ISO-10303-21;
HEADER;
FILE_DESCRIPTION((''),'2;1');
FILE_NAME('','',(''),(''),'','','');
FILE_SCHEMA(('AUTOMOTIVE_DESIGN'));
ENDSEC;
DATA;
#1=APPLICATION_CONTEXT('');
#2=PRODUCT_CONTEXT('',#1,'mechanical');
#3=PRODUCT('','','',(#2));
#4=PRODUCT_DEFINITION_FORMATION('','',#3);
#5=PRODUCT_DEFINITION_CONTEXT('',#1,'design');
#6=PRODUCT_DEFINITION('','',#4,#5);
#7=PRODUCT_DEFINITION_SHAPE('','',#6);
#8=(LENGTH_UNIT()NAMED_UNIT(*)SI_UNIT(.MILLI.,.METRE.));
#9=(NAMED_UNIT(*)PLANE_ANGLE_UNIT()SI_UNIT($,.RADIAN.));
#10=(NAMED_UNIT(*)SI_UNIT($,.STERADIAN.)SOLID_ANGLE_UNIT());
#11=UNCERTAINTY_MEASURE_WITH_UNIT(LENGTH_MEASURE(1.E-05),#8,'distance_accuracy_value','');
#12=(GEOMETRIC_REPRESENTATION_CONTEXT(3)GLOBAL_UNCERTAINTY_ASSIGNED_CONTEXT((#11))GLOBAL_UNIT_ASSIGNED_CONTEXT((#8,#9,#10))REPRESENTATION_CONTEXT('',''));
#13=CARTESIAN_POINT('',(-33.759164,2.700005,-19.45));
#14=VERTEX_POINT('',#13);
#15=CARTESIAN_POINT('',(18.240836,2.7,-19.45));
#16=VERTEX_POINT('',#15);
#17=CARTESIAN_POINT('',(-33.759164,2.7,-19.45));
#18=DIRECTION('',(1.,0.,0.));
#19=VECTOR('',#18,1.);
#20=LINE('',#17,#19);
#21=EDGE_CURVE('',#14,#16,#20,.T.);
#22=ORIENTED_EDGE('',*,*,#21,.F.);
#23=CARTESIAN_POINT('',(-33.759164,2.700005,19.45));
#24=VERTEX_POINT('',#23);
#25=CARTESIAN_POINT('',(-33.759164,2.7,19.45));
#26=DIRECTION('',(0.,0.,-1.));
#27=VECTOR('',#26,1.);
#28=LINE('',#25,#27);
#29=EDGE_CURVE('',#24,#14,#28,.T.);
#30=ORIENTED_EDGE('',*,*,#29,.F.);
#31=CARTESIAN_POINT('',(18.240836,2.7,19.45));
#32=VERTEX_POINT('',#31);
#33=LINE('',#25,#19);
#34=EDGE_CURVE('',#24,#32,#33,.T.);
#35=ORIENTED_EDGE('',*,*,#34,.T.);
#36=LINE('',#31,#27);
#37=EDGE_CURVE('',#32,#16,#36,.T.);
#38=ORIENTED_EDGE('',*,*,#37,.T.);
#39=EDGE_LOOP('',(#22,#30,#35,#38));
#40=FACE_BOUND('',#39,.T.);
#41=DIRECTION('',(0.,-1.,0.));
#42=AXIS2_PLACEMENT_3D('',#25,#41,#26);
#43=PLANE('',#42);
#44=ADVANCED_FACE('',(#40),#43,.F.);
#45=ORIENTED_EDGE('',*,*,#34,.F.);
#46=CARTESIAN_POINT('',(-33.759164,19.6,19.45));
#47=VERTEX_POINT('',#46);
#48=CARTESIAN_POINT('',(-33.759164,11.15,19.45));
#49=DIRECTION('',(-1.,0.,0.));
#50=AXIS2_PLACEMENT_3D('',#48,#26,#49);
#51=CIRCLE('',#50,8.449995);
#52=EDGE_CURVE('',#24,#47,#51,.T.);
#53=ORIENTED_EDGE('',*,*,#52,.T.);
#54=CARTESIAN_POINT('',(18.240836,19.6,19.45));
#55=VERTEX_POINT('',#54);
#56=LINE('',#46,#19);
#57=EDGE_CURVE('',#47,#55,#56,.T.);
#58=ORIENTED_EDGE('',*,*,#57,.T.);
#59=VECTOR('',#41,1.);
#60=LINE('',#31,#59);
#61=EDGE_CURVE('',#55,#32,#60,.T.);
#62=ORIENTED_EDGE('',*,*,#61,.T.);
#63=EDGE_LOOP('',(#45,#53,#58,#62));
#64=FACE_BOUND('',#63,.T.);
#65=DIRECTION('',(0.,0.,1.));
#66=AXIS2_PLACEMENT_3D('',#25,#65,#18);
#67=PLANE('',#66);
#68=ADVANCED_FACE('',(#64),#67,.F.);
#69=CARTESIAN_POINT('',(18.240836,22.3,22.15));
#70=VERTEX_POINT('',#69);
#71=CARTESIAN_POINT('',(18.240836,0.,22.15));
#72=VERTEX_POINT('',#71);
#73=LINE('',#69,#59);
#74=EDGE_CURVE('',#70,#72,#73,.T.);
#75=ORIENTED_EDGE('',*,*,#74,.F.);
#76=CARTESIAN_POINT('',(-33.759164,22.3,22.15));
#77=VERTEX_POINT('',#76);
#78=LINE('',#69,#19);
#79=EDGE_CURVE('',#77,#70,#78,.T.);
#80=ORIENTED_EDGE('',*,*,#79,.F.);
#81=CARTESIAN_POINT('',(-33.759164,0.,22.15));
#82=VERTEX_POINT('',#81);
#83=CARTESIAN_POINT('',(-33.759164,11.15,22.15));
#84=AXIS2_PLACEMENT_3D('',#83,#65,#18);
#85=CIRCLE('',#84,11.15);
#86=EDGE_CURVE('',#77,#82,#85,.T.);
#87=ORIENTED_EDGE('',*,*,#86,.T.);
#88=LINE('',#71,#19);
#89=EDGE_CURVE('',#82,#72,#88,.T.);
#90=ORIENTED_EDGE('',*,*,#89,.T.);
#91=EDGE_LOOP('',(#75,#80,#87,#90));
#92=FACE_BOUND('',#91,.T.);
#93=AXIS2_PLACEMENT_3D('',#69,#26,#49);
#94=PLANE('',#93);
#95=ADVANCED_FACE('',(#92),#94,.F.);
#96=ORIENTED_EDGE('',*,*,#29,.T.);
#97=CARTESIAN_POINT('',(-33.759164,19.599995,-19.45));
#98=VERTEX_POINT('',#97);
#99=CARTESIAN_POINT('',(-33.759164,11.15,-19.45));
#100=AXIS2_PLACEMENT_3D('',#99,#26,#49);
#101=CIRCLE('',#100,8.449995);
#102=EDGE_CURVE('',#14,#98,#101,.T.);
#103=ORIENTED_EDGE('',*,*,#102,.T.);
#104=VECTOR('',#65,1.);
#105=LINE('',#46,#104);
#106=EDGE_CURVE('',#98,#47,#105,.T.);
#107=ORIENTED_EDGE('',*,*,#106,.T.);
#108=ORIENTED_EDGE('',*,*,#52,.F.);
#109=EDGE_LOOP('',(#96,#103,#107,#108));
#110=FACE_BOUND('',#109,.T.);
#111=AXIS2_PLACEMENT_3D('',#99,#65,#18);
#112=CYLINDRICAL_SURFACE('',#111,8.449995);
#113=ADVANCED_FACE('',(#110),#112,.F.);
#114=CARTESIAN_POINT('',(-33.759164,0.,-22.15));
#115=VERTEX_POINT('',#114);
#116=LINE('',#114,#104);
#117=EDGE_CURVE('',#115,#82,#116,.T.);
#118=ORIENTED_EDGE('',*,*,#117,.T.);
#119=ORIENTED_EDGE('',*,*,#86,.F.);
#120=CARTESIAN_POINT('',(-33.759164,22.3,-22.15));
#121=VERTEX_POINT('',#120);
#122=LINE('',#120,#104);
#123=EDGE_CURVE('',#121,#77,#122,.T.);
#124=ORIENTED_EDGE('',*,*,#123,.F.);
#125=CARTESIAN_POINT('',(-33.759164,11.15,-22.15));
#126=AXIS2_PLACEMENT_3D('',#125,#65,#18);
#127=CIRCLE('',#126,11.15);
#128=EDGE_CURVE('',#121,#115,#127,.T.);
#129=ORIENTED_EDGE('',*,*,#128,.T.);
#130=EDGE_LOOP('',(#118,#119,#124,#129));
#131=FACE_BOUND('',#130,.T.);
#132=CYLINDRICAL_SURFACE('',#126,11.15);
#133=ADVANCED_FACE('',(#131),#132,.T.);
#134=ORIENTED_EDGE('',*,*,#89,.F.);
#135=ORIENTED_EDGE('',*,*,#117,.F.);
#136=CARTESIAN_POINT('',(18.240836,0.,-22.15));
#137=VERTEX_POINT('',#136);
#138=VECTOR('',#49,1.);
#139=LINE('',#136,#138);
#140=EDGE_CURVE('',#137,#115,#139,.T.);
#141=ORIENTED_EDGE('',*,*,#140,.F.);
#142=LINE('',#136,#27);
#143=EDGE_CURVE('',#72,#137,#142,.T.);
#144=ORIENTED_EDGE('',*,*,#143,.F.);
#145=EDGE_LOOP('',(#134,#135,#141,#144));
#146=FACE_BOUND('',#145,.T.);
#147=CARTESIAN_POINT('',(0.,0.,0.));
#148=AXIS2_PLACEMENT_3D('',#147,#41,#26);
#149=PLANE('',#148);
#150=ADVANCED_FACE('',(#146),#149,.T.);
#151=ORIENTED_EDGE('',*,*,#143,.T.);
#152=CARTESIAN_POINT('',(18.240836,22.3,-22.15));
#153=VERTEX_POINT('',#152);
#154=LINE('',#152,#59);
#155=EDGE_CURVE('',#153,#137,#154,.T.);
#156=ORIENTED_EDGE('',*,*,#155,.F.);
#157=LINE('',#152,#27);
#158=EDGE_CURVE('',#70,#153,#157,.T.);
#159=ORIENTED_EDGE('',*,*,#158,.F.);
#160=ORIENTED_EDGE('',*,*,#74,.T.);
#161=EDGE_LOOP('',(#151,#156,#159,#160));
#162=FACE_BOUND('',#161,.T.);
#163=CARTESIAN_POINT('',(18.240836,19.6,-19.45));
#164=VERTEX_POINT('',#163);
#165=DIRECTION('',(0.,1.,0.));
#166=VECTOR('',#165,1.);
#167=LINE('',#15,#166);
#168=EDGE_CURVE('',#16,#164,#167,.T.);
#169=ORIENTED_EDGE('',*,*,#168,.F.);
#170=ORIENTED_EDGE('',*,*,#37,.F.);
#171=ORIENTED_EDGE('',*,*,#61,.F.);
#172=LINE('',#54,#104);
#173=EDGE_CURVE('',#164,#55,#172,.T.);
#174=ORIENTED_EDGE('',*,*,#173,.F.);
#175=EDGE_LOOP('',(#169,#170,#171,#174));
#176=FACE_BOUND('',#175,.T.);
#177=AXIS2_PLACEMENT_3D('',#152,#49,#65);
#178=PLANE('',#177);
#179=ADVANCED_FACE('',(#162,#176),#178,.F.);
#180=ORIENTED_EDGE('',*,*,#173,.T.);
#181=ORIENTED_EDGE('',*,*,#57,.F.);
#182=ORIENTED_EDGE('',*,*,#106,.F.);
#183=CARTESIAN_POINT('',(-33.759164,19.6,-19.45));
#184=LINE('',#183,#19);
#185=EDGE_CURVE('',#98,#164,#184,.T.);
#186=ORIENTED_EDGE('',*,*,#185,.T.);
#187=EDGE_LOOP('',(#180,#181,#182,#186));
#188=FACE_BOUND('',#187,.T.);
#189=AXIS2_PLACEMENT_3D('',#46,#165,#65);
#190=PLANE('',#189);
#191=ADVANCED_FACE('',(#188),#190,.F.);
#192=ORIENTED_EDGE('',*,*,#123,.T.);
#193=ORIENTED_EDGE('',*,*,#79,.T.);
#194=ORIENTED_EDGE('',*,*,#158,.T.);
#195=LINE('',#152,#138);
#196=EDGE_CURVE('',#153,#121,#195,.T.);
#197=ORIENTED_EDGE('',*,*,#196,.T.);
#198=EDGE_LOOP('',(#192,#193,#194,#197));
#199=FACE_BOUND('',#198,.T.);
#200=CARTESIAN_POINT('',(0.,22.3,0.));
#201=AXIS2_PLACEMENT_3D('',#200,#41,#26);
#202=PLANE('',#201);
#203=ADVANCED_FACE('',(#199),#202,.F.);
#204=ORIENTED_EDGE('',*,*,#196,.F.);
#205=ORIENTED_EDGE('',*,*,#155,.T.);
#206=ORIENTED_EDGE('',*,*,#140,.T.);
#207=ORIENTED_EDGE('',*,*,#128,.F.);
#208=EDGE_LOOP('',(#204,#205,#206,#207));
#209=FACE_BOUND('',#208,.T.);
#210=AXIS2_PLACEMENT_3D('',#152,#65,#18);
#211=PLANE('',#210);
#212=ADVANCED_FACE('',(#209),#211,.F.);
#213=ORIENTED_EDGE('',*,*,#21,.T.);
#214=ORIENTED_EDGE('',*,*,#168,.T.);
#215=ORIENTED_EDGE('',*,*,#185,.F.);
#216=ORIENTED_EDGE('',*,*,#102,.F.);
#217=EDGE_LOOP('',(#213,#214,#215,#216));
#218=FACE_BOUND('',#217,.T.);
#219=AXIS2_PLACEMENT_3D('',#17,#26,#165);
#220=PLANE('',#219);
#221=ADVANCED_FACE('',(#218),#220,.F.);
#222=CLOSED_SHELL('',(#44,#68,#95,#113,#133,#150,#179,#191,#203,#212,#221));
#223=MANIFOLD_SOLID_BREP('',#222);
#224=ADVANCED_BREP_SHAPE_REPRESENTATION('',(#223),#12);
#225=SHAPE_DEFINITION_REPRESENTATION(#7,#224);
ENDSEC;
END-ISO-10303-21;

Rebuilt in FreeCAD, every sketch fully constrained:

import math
import FreeCAD as App
import Part
import Sketcher
Q = App.Units.Quantity

doc = App.newDocument("Part")
params = doc.addObject("Spreadsheet::Sheet", "Params")
for row, (alias, value) in enumerate([
    ("sketch1_width", "52 mm"),
    ("sketch1_height", "44.3 mm"),
    ("pad1_length", "22.3 mm"),
    ("sketch2_width", "16.9 mm"),
    ("sketch2_height", "38.9 mm"),
    ("pocket1_length", "52 mm"),
    ("sketch3_radius", "11.15 mm"),
    ("pad2_length", "44.3 mm"),
    ("pocket2_length", "38.9 mm"),
], start=1):
    params.set(f"A{row}", alias)
    params.set(f"B{row}", "=" + value)
    params.setAlias(f"B{row}", alias)

body = doc.addObject("PartDesign::Body", "Body")

sketch1 = body.newObject("Sketcher::SketchObject", "Sketch")
sketch1.AttachmentSupport = (doc.getObject("XZ_Plane"), [""])
sketch1.MapMode = "FlatFace"
sketch1.addGeometry([
    Part.LineSegment(App.Vector(-34, -22, 0), App.Vector(-34, 22, 0)),
    Part.LineSegment(App.Vector(-34, 22, 0), App.Vector(18, 22, 0)),
    Part.LineSegment(App.Vector(18, 22, 0), App.Vector(18, -22, 0)),
    Part.LineSegment(App.Vector(18, -22, 0), App.Vector(-34, -22, 0)),
], False)
sketch1.addConstraint([
    Sketcher.Constraint("Coincident", 0, 2, 1, 1),
    Sketcher.Constraint("Coincident", 1, 2, 2, 1),
    Sketcher.Constraint("Coincident", 2, 2, 3, 1),
    Sketcher.Constraint("Coincident", 3, 2, 0, 1),
    Sketcher.Constraint("Vertical", 0),
    Sketcher.Constraint("Horizontal", 1),
    Sketcher.Constraint("Vertical", 2),
    Sketcher.Constraint("Horizontal", 3),
    Sketcher.Constraint("DistanceX", 1, 1, 1, 2, Q("52 mm")),
    Sketcher.Constraint("DistanceY", 0, 1, 0, 2, Q("44.3 mm")),
    Sketcher.Constraint("DistanceY", -1, 1, 0, 2, Q("22.15 mm")),
    Sketcher.Constraint("DistanceX", 0, 2, -1, 1, Q("33.759164 mm")),
])
sketch1.setExpression("Constraints[8]", "Params.sketch1_width")
sketch1.setExpression("Constraints[9]", "Params.sketch1_height")
pad1 = body.newObject("PartDesign::Pad", "Pad")
pad1.Profile = sketch1
pad1.setExpression("Length", "Params.pad1_length")
pad1.Reversed = True

sketch2 = body.newObject("Sketcher::SketchObject", "Sketch001")
sketch2.AttachmentSupport = (doc.getObject("YZ_Plane"), [""])
sketch2.MapMode = "FlatFace"
sketch2.AttachmentOffset = App.Placement(App.Vector(0, 0, 18.240836), App.Rotation())
sketch2.addGeometry([
    Part.LineSegment(App.Vector(20, 19, 0), App.Vector(3, 19, 0)),
    Part.LineSegment(App.Vector(3, 19, 0), App.Vector(3, -19, 0)),
    Part.LineSegment(App.Vector(3, -19, 0), App.Vector(20, -19, 0)),
    Part.LineSegment(App.Vector(20, -19, 0), App.Vector(20, 19, 0)),
], False)
sketch2.addConstraint([
    Sketcher.Constraint("Coincident", 0, 2, 1, 1),
    Sketcher.Constraint("Coincident", 1, 2, 2, 1),
    Sketcher.Constraint("Coincident", 2, 2, 3, 1),
    Sketcher.Constraint("Coincident", 3, 2, 0, 1),
    Sketcher.Constraint("Horizontal", 0),
    Sketcher.Constraint("Vertical", 1),
    Sketcher.Constraint("Horizontal", 2),
    Sketcher.Constraint("Vertical", 3),
    Sketcher.Constraint("DistanceX", 0, 2, 0, 1, Q("16.9 mm")),
    Sketcher.Constraint("DistanceY", 1, 2, 1, 1, Q("38.9 mm")),
    Sketcher.Constraint("DistanceX", -1, 1, 0, 2, Q("2.7 mm")),
    Sketcher.Constraint("DistanceY", -1, 1, 0, 2, Q("19.45 mm")),
])
sketch2.setExpression("Constraints[8]", "Params.sketch2_width")
sketch2.setExpression("Constraints[9]", "Params.sketch2_height")
pocket1 = body.newObject("PartDesign::Pocket", "Pocket")
pocket1.Profile = sketch2
pocket1.setExpression("Length", "Params.pocket1_length")

sketch3 = body.newObject("Sketcher::SketchObject", "Sketch002")
sketch3.AttachmentSupport = (doc.getObject("XY_Plane"), [""])
sketch3.MapMode = "FlatFace"
sketch3.AttachmentOffset = App.Placement(App.Vector(0, 0, 22.15), App.Rotation())
sketch3.addGeometry([
    Part.LineSegment(App.Vector(-34, 0, 0), App.Vector(-34, 22, 0)),
    Part.ArcOfCircle(Part.Circle(App.Vector(-34, 11, 0), App.Vector(0, 0, 1), 11), math.radians(90), math.radians(270)),
], False)
sketch3.addConstraint([
    Sketcher.Constraint("Coincident", 0, 1, 1, 2),
    Sketcher.Constraint("Coincident", 1, 1, 0, 2),
    Sketcher.Constraint("Vertical", 0),
    Sketcher.Constraint("PointOnObject", 0, 1, -1),
    Sketcher.Constraint("Vertical", 1, 3, 0, 1),
    Sketcher.Constraint("Radius", 1, Q("11.15 mm")),
    Sketcher.Constraint("DistanceX", 1, 3, -1, 1, Q("33.759164 mm")),
])
sketch3.setExpression("Constraints[5]", "Params.sketch3_radius")
pad2 = body.newObject("PartDesign::Pad", "Pad001")
pad2.Profile = sketch3
pad2.setExpression("Length", "Params.pad2_length")
pad2.Reversed = True

sketch4 = body.newObject("Sketcher::SketchObject", "Sketch003")
sketch4.AttachmentSupport = (doc.getObject("XY_Plane"), [""])
sketch4.MapMode = "FlatFace"
sketch4.AttachmentOffset = App.Placement(App.Vector(0, 0, 19.45), App.Rotation())
sketch4.addGeometry([
    Part.LineSegment(App.Vector(-34, 20, 0), App.Vector(-34, 3, 0)),
    Part.ArcOfCircle(Part.Circle(App.Vector(-34, 11, 0), App.Vector(0, 0, 1), 8), math.radians(90), math.radians(270)),
], False)
sketch4.addConstraint([
    Sketcher.Constraint("Coincident", 0, 1, 1, 1),
    Sketcher.Constraint("Coincident", 1, 2, 0, 2),
    Sketcher.Constraint("Vertical", 0),
    Sketcher.Constraint("Vertical", 1, 3, 0, 1),
    Sketcher.Constraint("DistanceY", -1, 1, 1, 3, Q("11.15 mm")),
    Sketcher.Constraint("Radius", 1, Q("8.449995 mm")),
    Sketcher.Constraint("DistanceX", 1, 3, -1, 1, Q("33.759164 mm")),
])
pocket2 = body.newObject("PartDesign::Pocket", "Pocket001")
pocket2.Profile = sketch4
pocket2.setExpression("Length", "Params.pocket2_length")

doc.recompute()
